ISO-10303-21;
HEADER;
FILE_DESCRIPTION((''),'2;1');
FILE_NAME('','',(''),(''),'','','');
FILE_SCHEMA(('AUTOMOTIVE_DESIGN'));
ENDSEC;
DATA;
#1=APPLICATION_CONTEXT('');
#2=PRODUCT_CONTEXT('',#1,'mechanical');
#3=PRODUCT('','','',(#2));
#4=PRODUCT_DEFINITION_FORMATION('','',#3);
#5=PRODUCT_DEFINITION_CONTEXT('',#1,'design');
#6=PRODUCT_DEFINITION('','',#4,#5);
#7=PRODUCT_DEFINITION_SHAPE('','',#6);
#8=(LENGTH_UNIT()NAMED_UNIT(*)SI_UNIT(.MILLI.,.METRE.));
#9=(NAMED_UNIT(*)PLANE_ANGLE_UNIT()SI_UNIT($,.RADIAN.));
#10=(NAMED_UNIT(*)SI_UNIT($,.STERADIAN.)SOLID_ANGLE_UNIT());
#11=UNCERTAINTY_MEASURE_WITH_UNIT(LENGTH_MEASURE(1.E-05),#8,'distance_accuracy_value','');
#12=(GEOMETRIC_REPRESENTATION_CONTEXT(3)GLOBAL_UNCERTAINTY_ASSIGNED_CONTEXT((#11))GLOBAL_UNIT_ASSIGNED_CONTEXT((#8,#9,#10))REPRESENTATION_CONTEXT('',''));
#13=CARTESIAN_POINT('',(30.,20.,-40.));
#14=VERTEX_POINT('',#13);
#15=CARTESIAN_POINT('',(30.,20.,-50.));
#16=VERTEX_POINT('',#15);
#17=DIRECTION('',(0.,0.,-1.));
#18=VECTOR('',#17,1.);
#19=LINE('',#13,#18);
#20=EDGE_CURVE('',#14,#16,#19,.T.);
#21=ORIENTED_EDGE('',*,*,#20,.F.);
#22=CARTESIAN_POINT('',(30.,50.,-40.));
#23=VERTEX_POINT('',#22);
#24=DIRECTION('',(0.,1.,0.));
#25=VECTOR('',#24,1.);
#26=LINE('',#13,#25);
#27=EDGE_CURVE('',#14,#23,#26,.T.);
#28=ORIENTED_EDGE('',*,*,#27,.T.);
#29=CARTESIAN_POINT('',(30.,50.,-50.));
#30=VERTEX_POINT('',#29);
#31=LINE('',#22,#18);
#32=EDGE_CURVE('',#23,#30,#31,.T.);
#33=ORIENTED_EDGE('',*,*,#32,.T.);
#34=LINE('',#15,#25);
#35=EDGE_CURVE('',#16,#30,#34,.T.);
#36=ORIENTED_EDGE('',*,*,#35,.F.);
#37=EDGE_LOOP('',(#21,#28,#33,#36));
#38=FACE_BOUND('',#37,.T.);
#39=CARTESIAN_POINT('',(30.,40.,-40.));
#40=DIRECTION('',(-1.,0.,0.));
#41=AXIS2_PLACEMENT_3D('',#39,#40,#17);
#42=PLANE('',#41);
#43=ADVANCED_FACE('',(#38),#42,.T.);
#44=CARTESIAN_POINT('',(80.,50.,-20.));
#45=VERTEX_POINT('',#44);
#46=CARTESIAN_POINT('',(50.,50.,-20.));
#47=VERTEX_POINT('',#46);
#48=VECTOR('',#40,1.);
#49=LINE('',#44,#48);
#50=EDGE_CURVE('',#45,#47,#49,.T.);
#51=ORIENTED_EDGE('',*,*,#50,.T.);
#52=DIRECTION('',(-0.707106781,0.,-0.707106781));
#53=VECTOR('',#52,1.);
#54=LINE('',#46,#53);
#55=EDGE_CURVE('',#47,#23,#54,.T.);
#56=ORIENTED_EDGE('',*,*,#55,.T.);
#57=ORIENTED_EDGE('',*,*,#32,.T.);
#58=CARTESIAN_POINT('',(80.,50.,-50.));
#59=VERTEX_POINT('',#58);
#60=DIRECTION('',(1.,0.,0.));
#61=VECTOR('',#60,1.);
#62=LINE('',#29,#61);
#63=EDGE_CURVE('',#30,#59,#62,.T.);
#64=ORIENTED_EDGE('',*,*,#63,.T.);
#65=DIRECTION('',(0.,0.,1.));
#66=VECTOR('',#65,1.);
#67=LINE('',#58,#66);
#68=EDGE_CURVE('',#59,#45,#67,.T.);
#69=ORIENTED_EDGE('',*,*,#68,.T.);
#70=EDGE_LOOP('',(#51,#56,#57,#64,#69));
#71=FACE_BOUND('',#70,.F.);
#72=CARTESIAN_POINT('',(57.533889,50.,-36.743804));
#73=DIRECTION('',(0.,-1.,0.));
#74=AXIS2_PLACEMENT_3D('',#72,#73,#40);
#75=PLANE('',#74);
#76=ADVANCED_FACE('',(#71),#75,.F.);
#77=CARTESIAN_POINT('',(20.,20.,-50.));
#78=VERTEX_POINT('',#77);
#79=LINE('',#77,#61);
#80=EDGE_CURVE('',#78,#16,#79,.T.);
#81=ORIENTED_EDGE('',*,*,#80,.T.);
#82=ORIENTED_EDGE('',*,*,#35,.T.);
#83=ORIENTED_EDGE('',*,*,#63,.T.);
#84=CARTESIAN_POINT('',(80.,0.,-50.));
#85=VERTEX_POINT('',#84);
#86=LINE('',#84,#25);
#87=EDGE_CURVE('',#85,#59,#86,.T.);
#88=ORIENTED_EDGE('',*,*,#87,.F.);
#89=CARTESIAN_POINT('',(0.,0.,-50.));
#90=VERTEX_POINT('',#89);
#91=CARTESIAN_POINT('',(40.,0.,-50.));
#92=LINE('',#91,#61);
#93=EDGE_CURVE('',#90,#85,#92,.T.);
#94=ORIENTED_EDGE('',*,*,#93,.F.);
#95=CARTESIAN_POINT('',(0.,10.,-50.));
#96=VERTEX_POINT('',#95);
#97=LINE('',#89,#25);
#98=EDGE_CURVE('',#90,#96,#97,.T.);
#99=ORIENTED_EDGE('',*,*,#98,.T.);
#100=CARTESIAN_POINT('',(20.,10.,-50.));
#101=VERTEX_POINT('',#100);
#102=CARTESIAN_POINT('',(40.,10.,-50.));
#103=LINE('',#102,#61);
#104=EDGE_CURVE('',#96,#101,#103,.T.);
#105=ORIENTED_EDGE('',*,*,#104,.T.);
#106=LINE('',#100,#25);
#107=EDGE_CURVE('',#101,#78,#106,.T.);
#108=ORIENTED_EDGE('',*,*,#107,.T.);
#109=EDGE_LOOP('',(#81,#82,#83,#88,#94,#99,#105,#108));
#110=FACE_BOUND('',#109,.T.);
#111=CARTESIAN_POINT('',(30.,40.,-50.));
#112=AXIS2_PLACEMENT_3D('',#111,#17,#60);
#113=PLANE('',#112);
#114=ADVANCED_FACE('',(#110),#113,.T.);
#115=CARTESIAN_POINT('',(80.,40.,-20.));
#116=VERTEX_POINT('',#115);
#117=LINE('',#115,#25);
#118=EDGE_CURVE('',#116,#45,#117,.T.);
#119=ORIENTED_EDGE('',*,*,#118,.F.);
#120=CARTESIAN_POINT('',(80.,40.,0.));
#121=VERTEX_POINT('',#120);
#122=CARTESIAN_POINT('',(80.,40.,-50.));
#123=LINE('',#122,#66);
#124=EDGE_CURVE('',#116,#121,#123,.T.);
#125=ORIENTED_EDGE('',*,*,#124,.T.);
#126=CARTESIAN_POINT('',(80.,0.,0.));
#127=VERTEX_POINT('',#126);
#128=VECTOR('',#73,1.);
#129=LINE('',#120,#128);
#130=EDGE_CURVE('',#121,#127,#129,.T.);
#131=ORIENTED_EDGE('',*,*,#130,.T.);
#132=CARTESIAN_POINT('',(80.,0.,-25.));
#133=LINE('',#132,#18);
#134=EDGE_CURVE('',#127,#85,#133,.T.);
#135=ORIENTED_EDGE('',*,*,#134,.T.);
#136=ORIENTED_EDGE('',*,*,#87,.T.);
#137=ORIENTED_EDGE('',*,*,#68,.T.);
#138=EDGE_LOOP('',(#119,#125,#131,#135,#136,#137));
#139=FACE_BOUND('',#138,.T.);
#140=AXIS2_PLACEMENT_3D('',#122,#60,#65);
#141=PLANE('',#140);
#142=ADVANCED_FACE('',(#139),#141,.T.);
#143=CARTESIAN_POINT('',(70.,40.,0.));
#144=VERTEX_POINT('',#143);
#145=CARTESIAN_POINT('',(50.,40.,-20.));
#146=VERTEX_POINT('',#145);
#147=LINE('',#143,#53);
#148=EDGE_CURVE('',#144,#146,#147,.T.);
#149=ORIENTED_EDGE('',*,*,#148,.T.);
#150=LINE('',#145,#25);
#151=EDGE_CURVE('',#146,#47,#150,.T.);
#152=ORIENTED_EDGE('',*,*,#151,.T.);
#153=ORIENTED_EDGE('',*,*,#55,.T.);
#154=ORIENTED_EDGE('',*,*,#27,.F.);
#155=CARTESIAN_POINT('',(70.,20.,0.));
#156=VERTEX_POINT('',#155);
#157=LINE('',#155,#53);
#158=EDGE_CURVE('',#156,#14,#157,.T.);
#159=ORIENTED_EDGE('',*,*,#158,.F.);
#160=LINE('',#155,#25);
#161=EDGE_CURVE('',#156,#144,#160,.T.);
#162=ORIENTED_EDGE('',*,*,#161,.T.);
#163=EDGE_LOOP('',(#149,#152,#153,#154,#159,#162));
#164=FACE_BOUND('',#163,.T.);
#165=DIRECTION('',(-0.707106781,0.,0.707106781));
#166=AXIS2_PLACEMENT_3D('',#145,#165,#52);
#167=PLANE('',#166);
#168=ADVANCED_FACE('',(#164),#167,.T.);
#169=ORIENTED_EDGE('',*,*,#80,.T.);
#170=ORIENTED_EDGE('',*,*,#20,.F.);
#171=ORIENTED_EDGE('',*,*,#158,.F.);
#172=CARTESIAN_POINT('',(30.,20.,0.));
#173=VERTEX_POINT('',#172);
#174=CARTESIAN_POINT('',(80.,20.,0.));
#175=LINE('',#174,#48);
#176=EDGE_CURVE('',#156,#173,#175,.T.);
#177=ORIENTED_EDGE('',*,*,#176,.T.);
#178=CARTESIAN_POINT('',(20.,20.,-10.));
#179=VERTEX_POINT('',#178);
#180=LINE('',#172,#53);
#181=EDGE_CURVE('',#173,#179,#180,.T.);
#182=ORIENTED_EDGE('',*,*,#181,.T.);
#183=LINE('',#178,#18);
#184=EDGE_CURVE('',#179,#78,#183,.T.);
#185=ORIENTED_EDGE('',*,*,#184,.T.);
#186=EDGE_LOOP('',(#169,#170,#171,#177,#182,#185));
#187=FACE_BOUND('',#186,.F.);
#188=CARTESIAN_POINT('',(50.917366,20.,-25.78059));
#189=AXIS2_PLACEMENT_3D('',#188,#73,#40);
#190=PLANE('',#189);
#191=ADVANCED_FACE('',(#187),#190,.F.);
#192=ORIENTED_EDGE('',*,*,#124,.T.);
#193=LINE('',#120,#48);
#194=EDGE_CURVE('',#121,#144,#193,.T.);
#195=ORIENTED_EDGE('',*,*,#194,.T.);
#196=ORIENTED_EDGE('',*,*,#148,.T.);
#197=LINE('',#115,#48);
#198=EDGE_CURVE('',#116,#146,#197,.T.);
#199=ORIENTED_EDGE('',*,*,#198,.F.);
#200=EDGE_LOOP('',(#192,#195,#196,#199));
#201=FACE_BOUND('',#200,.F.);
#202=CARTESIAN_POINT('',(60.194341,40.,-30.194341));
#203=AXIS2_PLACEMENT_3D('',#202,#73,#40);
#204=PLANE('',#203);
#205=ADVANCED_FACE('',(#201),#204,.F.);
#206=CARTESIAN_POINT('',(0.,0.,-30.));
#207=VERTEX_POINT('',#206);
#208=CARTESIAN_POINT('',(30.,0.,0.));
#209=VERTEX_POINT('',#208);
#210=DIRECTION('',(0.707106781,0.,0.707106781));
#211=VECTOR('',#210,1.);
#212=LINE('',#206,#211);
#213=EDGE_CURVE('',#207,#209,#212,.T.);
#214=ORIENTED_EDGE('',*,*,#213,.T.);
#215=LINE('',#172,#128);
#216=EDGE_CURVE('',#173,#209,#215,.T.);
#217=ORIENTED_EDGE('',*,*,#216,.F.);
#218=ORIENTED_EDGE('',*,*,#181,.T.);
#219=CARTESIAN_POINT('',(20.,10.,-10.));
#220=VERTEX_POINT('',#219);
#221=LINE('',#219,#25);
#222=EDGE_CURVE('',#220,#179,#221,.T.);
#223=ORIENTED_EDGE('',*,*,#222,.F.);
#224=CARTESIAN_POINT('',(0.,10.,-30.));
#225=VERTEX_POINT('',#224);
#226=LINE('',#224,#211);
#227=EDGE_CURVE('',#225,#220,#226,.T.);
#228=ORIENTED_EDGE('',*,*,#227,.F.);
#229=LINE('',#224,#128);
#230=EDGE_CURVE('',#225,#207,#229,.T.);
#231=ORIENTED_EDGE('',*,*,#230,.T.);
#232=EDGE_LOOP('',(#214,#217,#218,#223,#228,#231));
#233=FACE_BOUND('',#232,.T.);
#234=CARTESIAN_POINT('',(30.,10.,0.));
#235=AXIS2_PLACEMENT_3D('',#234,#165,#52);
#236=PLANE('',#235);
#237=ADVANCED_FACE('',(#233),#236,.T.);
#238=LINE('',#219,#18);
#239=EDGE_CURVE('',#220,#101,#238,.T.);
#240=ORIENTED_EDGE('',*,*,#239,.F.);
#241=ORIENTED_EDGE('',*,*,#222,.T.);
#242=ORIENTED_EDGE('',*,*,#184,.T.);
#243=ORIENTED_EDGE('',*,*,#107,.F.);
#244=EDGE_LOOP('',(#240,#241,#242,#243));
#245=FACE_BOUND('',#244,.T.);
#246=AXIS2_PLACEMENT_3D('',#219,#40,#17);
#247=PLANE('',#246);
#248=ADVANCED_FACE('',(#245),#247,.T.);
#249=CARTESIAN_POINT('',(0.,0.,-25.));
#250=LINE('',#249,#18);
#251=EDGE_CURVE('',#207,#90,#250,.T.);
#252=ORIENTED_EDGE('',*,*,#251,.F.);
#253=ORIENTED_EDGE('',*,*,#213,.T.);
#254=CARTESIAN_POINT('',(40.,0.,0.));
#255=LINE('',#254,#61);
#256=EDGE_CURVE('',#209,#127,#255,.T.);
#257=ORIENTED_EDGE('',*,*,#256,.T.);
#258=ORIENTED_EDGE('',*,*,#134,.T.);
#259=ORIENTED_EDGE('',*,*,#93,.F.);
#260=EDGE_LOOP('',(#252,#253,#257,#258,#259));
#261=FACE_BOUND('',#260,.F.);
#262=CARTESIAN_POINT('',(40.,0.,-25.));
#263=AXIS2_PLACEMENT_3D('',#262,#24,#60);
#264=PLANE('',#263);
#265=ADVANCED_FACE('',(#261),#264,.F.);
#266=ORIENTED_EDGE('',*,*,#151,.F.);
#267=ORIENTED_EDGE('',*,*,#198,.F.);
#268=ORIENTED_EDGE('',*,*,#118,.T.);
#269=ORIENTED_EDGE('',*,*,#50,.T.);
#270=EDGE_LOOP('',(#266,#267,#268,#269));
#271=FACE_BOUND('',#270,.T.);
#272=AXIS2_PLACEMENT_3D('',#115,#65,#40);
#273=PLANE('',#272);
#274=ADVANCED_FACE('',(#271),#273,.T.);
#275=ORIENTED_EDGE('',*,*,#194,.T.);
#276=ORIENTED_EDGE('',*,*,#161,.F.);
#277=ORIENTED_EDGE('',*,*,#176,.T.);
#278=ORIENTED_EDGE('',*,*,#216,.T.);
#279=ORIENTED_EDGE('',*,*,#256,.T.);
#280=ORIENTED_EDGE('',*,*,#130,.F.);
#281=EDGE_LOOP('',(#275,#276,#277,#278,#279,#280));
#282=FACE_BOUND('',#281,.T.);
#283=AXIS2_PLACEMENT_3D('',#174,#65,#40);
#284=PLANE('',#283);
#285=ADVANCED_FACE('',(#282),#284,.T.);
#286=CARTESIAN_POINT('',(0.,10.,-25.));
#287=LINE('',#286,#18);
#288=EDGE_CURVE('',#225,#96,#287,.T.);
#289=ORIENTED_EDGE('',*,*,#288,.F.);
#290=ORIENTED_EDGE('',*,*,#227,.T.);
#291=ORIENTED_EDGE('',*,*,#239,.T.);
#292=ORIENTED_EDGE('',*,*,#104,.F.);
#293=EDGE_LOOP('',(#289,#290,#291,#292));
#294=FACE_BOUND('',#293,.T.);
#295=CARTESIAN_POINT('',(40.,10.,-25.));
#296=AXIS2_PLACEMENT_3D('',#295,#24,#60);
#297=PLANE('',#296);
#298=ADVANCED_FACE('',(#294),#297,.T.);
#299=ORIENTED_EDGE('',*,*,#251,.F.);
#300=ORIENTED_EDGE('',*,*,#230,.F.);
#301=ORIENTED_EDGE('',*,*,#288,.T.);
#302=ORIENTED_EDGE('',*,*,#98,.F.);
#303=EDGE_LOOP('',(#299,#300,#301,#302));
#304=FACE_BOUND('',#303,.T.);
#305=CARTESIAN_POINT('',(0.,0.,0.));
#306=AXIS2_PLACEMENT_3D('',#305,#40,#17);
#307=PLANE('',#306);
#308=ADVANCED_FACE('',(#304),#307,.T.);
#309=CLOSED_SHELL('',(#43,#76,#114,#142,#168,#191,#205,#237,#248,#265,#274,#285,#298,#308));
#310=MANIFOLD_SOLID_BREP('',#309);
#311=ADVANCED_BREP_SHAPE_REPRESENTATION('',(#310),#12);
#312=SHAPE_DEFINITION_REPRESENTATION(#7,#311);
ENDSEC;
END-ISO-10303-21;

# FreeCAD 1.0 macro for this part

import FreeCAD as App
import Part
import Sketcher
Q = App.Units.Quantity

doc = App.newDocument("Part")
body = doc.addObject("PartDesign::Body", "Body")

# Sketch on XZ plane
sketch1 = body.newObject("Sketcher::SketchObject", "Sketch")
sketch1.AttachmentSupport = (doc.getObject("XZ_Plane"), [""])
sketch1.MapMode = "FlatFace"
sketch1.addGeometry(Part.LineSegment(App.Vector(0, -50, 0), App.Vector(0, 0, 0)), False)
sketch1.addGeometry(Part.LineSegment(App.Vector(0, 0, 0), App.Vector(80, 0, 0)), False)
sketch1.addGeometry(Part.LineSegment(App.Vector(80, 0, 0), App.Vector(80, -50, 0)), False)
sketch1.addGeometry(Part.LineSegment(App.Vector(80, -50, 0), App.Vector(0, -50, 0)), False)
sketch1.addConstraint(Sketcher.Constraint("Coincident", 0, 2, 1, 1))
sketch1.addConstraint(Sketcher.Constraint("Coincident", 1, 2, 2, 1))
sketch1.addConstraint(Sketcher.Constraint("Coincident", 2, 2, 3, 1))
sketch1.addConstraint(Sketcher.Constraint("Coincident", 3, 2, 0, 1))
sketch1.addConstraint(Sketcher.Constraint("Vertical", 0))
sketch1.addConstraint(Sketcher.Constraint("Horizontal", 1))
sketch1.addConstraint(Sketcher.Constraint("Vertical", 2))
sketch1.addConstraint(Sketcher.Constraint("Horizontal", 3))
sketch1.addConstraint(Sketcher.Constraint("Coincident", 0, 2, -1, 1))
sketch1.addConstraint(Sketcher.Constraint("DistanceX", 1, 1, 1, 2, Q("80 mm")))
sketch1.addConstraint(Sketcher.Constraint("DistanceY", 0, 1, 0, 2, Q("50 mm")))
pad1 = body.newObject("PartDesign::Pad", "Pad")
pad1.Profile = sketch1
pad1.Length = 10
pad1.Reversed = True

# Sketch on XZ plane
sketch2 = body.newObject("Sketcher::SketchObject", "Sketch001")
sketch2.AttachmentSupport = (doc.getObject("XZ_Plane"), [""])
sketch2.MapMode = "FlatFace"
sketch2.AttachmentOffset = App.Placement(App.Vector(0, 0, -10), App.Rotation())
sketch2.addGeometry(Part.LineSegment(App.Vector(30, 0, 0), App.Vector(0, -30, 0)), False)
sketch2.addGeometry(Part.LineSegment(App.Vector(0, -30, 0), App.Vector(0, 0, 0)), False)
sketch2.addGeometry(Part.LineSegment(App.Vector(0, 0, 0), App.Vector(30, 0, 0)), False)
sketch2.addConstraint(Sketcher.Constraint("Coincident", 0, 2, 1, 1))
sketch2.addConstraint(Sketcher.Constraint("Coincident", 1, 2, 2, 1))
sketch2.addConstraint(Sketcher.Constraint("Coincident", 2, 2, 0, 1))
sketch2.addConstraint(Sketcher.Constraint("Vertical", 1))
sketch2.addConstraint(Sketcher.Constraint("Horizontal", 2))
sketch2.addConstraint(Sketcher.Constraint("Coincident", 1, 2, -1, 1))
sketch2.addConstraint(Sketcher.Constraint("Equal", 2, 1))
sketch2.addConstraint(Sketcher.Constraint("DistanceX", 2, 1, 2, 2, Q("30 mm")))
pocket1 = body.newObject("PartDesign::Pocket", "Pocket")
pocket1.Profile = sketch2
pocket1.Length = 10
pocket1.Reversed = True

# Sketch on XZ plane
sketch3 = body.newObject("Sketcher::SketchObject", "Sketch002")
sketch3.AttachmentSupport = (doc.getObject("XZ_Plane"), [""])
sketch3.MapMode = "FlatFace"
sketch3.AttachmentOffset = App.Placement(App.Vector(0, 0, -10), App.Rotation())
sketch3.addGeometry(Part.LineSegment(App.Vector(80, 0, 0), App.Vector(80, -50, 0)), False)
sketch3.addGeometry(Part.LineSegment(App.Vector(80, -50, 0), App.Vector(20, -50, 0)), False)
sketch3.addGeometry(Part.LineSegment(App.Vector(20, -50, 0), App.Vector(20, -10, 0)), False)
sketch3.addGeometry(Part.LineSegment(App.Vector(20, -10, 0), App.Vector(30, 0, 0)), False)
sketch3.addGeometry(Part.LineSegment(App.Vector(30, 0, 0), App.Vector(80, 0, 0)), False)
sketch3.addConstraint(Sketcher.Constraint("Coincident", 0, 2, 1, 1))
sketch3.addConstraint(Sketcher.Constraint("Coincident", 1, 2, 2, 1))
sketch3.addConstraint(Sketcher.Constraint("Coincident", 2, 2, 3, 1))
sketch3.addConstraint(Sketcher.Constraint("Coincident", 3, 2, 4, 1))
sketch3.addConstraint(Sketcher.Constraint("Coincident", 4, 2, 0, 1))
sketch3.addConstraint(Sketcher.Constraint("Vertical", 0))
sketch3.addConstraint(Sketcher.Constraint("Horizontal", 1))
sketch3.addConstraint(Sketcher.Constraint("Vertical", 2))
sketch3.addConstraint(Sketcher.Constraint("Horizontal", 4))
sketch3.addConstraint(Sketcher.Constraint("PointOnObject", 3, 2, -1))
sketch3.addConstraint(Sketcher.Constraint("Equal", 4, 0))
sketch3.addConstraint(Sketcher.Constraint("DistanceX", 1, 2, 1, 1, Q("60 mm")))
sketch3.addConstraint(Sketcher.Constraint("DistanceX", 4, 1, 4, 2, Q("50 mm")))
sketch3.addConstraint(Sketcher.Constraint("DistanceY", 2, 1, 2, 2, Q("40 mm")))
sketch3.addConstraint(Sketcher.Constraint("DistanceX", -1, 1, 0, 2, Q("80 mm")))
pad2 = body.newObject("PartDesign::Pad", "Pad001")
pad2.Profile = sketch3
pad2.Length = 10
pad2.Reversed = True

# Sketch on XZ plane
sketch4 = body.newObject("Sketcher::SketchObject", "Sketch003")
sketch4.AttachmentSupport = (doc.getObject("XZ_Plane"), [""])
sketch4.MapMode = "FlatFace"
sketch4.AttachmentOffset = App.Placement(App.Vector(0, 0, -20), App.Rotation())
sketch4.addGeometry(Part.LineSegment(App.Vector(80, 0, 0), App.Vector(80, -50, 0)), False)
sketch4.addGeometry(Part.LineSegment(App.Vector(80, -50, 0), App.Vector(30, -50, 0)), False)
sketch4.addGeometry(Part.LineSegment(App.Vector(30, -50, 0), App.Vector(30, -40, 0)), False)
sketch4.addGeometry(Part.LineSegment(App.Vector(30, -40, 0), App.Vector(70, 0, 0)), False)
sketch4.addGeometry(Part.LineSegment(App.Vector(70, 0, 0), App.Vector(80, 0, 0)), False)
sketch4.addConstraint(Sketcher.Constraint("Coincident", 0, 2, 1, 1))
sketch4.addConstraint(Sketcher.Constraint("Coincident", 1, 2, 2, 1))
sketch4.addConstraint(Sketcher.Constraint("Coincident", 2, 2, 3, 1))
sketch4.addConstraint(Sketcher.Constraint("Coincident", 3, 2, 4, 1))
sketch4.addConstraint(Sketcher.Constraint("Coincident", 4, 2, 0, 1))
sketch4.addConstraint(Sketcher.Constraint("Vertical", 0))
sketch4.addConstraint(Sketcher.Constraint("Horizontal", 1))
sketch4.addConstraint(Sketcher.Constraint("Vertical", 2))
sketch4.addConstraint(Sketcher.Constraint("Horizontal", 4))
sketch4.addConstraint(Sketcher.Constraint("PointOnObject", 3, 2, -1))
sketch4.addConstraint(Sketcher.Constraint("Equal", 1, 0))
sketch4.addConstraint(Sketcher.Constraint("Equal", 4, 2))
sketch4.addConstraint(Sketcher.Constraint("DistanceX", 1, 2, 1, 1, Q("50 mm")))
sketch4.addConstraint(Sketcher.Constraint("DistanceX", 4, 1, 4, 2, Q("10 mm")))
sketch4.addConstraint(Sketcher.Constraint("DistanceX", -1, 1, 0, 2, Q("80 mm")))
pad3 = body.newObject("PartDesign::Pad", "Pad002")
pad3.Profile = sketch4
pad3.Length = 20
pad3.Reversed = True

# Sketch on XZ plane
sketch5 = body.newObject("Sketcher::SketchObject", "Sketch004")
sketch5.AttachmentSupport = (doc.getObject("XZ_Plane"), [""])
sketch5.MapMode = "FlatFace"
sketch5.AttachmentOffset = App.Placement(App.Vector(0, 0, -40), App.Rotation())
sketch5.addGeometry(Part.LineSegment(App.Vector(80, -20, 0), App.Vector(80, -50, 0)), False)
sketch5.addGeometry(Part.LineSegment(App.Vector(80, -50, 0), App.Vector(30, -50, 0)), False)
sketch5.addGeometry(Part.LineSegment(App.Vector(30, -50, 0), App.Vector(30, -40, 0)), False)
sketch5.addGeometry(Part.LineSegment(App.Vector(30, -40, 0), App.Vector(50, -20, 0)), False)
sketch5.addGeometry(Part.LineSegment(App.Vector(50, -20, 0), App.Vector(80, -20, 0)), False)
sketch5.addConstraint(Sketcher.Constraint("Coincident", 0, 2, 1, 1))
sketch5.addConstraint(Sketcher.Constraint("Coincident", 1, 2, 2, 1))
sketch5.addConstraint(Sketcher.Constraint("Coincident", 2, 2, 3, 1))
sketch5.addConstraint(Sketcher.Constraint("Coincident", 3, 2, 4, 1))
sketch5.addConstraint(Sketcher.Constraint("Coincident", 4, 2, 0, 1))
sketch5.addConstraint(Sketcher.Constraint("Vertical", 0))
sketch5.addConstraint(Sketcher.Constraint("Horizontal", 1))
sketch5.addConstraint(Sketcher.Constraint("Vertical", 2))
sketch5.addConstraint(Sketcher.Constraint("Horizontal", 4))
sketch5.addConstraint(Sketcher.Constraint("Equal", 4, 0))
sketch5.addConstraint(Sketcher.Constraint("DistanceX", 1, 2, 1, 1, Q("50 mm")))
sketch5.addConstraint(Sketcher.Constraint("DistanceX", 4, 1, 4, 2, Q("30 mm")))
sketch5.addConstraint(Sketcher.Constraint("DistanceY", 2, 1, 2, 2, Q("10 mm")))
sketch5.addConstraint(Sketcher.Constraint("DistanceX", -1, 1, 0, 2, Q("80 mm")))
sketch5.addConstraint(Sketcher.Constraint("DistanceY", 0, 2, -1, 1, Q("50 mm")))
pad4 = body.newObject("PartDesign::Pad", "Pad003")
pad4.Profile = sketch5
pad4.Length = 10
pad4.Reversed = True

doc.recompute()
